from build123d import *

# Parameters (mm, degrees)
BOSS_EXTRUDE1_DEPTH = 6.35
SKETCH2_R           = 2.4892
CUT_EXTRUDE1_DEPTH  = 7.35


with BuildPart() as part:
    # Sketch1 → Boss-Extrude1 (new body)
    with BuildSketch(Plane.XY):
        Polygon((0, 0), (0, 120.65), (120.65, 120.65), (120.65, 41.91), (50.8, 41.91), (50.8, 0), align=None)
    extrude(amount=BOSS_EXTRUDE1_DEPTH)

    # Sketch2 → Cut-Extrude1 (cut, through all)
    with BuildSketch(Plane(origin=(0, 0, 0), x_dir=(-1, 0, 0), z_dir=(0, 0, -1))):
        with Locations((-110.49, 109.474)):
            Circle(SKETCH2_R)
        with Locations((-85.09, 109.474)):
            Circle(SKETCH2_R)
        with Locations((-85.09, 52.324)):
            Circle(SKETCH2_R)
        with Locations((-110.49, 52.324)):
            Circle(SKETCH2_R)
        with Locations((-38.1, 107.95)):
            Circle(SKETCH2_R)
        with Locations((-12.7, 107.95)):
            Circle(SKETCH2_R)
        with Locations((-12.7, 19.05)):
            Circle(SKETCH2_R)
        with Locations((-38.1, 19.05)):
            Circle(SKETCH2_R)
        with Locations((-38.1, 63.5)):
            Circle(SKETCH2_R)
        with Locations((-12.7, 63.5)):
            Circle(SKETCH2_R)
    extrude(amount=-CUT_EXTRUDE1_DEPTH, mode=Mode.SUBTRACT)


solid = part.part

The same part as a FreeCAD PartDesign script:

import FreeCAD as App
import Part
import Sketcher
from FreeCAD import Vector
Q = App.Units.Quantity


def add_polygon(sketch, points):
    """Adds a closed chain of lines whose ends are joined by coincident constraints."""
    first, n = sketch.GeometryCount, len(points)
    for a, b in zip(points, points[1:] + points[:1]):
        sketch.addGeometry(Part.LineSegment(App.Vector(*a, 0), App.Vector(*b, 0)), False)
    for i in range(n):
        sketch.addConstraint(Sketcher.Constraint("Coincident", first + i, 2, first + (i + 1) % n, 1))

doc = App.newDocument("Part")
params = doc.addObject("Spreadsheet::Sheet", "Params")
for row, (alias, value) in enumerate([
    ("sketch1_width", "2 in"),
    ("sketch1_height", "3.1 in"),
    ("sketch1_width2", "2.75 in"),
    ("pad1_length", "0.25 in"),
    ("sketch2_diameter", "0.196 in"),
], start=1):
    params.set(f"A{row}", alias)
    params.set(f"B{row}", "=" + value)
    params.setAlias(f"B{row}", alias)

body = doc.addObject("PartDesign::Body", "Body")

# Sketch on XY plane
sketch1 = body.newObject("Sketcher::SketchObject", "Sketch")
sketch1.AttachmentSupport = (doc.getObject("XY_Plane"), [""])
sketch1.MapMode = "FlatFace"
add_polygon(sketch1, [(0, 121), (0, 0), (51, 0), (51, 42), (121, 42), (121, 121)])  # lines 0-5
sketch1.addConstraint(Sketcher.Constraint("Vertical", 0))
sketch1.addConstraint(Sketcher.Constraint("Horizontal", 1))
sketch1.addConstraint(Sketcher.Constraint("Vertical", 2))
sketch1.addConstraint(Sketcher.Constraint("Horizontal", 3))
sketch1.addConstraint(Sketcher.Constraint("Vertical", 4))
sketch1.addConstraint(Sketcher.Constraint("Horizontal", 5))
sketch1.addConstraint(Sketcher.Constraint("Coincident", 0, 2, -1, 1))
sketch1.addConstraint(Sketcher.Constraint("Equal", 5, 0))
sketch1.addConstraint(Sketcher.Constraint("DistanceX", 1, 1, 1, 2, Q("2 in")))
sketch1.addConstraint(Sketcher.Constraint("DistanceY", 4, 1, 4, 2, Q("3.1 in")))
sketch1.addConstraint(Sketcher.Constraint("DistanceX", 3, 1, 3, 2, Q("2.75 in")))
sketch1.setExpression("Constraints[14]", "Params.sketch1_width")
sketch1.setExpression("Constraints[15]", "Params.sketch1_height")
sketch1.setExpression("Constraints[16]", "Params.sketch1_width2")
pad1 = body.newObject("PartDesign::Pad", "Pad")
pad1.Profile = sketch1
pad1.setExpression("Length", "Params.pad1_length")

# Sketch on XY plane
sketch2 = body.newObject("Sketcher::SketchObject", "Sketch001")
sketch2.AttachmentSupport = (doc.getObject("XY_Plane"), [""])
sketch2.MapMode = "FlatFace"
sketch2.addGeometry(Part.Circle(Vector(110.5, 109.5, 0), Vector(0, 0, 1), 2.5), False)
sketch2.addGeometry(Part.Circle(Vector(85.1, 109.5, 0), Vector(0, 0, 1), 2.5), False)
sketch2.addGeometry(Part.Circle(Vector(85.1, 52.3, 0), Vector(0, 0, 1), 2.5), False)
sketch2.addGeometry(Part.Circle(Vector(110.5, 52.3, 0), Vector(0, 0, 1), 2.5), False)
sketch2.addGeometry(Part.Circle(Vector(38.1, 108, 0), Vector(0, 0, 1), 2.5), False)
sketch2.addGeometry(Part.Circle(Vector(12.7, 108, 0), Vector(0, 0, 1), 2.5), False)
sketch2.addGeometry(Part.Circle(Vector(12.7, 19.1, 0), Vector(0, 0, 1), 2.5), False)
sketch2.addGeometry(Part.Circle(Vector(38.1, 19.1, 0), Vector(0, 0, 1), 2.5), False)
sketch2.addGeometry(Part.Circle(Vector(38.1, 63.5, 0), Vector(0, 0, 1), 2.5), False)
sketch2.addGeometry(Part.Circle(Vector(12.7, 63.5, 0), Vector(0, 0, 1), 2.5), False)
sketch2.addConstraint(Sketcher.Constraint("Equal", 0, 1))
sketch2.addConstraint(Sketcher.Constraint("Equal", 1, 2))
sketch2.addConstraint(Sketcher.Constraint("Equal", 2, 3))
sketch2.addConstraint(Sketcher.Constraint("Equal", 3, 4))
sketch2.addConstraint(Sketcher.Constraint("Equal", 4, 5))
sketch2.addConstraint(Sketcher.Constraint("Equal", 5, 6))
sketch2.addConstraint(Sketcher.Constraint("Equal", 6, 7))
sketch2.addConstraint(Sketcher.Constraint("Equal", 7, 8))
sketch2.addConstraint(Sketcher.Constraint("Equal", 8, 9))
sketch2.addConstraint(Sketcher.Constraint("Horizontal", 0, 3, 1, 3))
sketch2.addConstraint(Sketcher.Constraint("Horizontal", 2, 3, 3, 3))
sketch2.addConstraint(Sketcher.Constraint("Horizontal", 4, 3, 5, 3))
sketch2.addConstraint(Sketcher.Constraint("Horizontal", 6, 3, 7, 3))
sketch2.addConstraint(Sketcher.Constraint("Horizontal", 8, 3, 9, 3))
sketch2.addConstraint(Sketcher.Constraint("Vertical", 1, 3, 2, 3))
sketch2.addConstraint(Sketcher.Constraint("Vertical", 0, 3, 3, 3))
sketch2.addConstraint(Sketcher.Constraint("Vertical", 5, 3, 6, 3))
sketch2.addConstraint(Sketcher.Constraint("Vertical", 4, 3, 7, 3))
sketch2.addConstraint(Sketcher.Constraint("Vertical", 7, 3, 8, 3))
sketch2.addConstraint(Sketcher.Constraint("Vertical", 6, 3, 9, 3))
sketch2.addConstraint(Sketcher.Constraint("Diameter", 0, Q("0.196 in")))
sketch2.addConstraint(Sketcher.Constraint("DistanceX", 1, 3, 0, 3, Q("1 in")))
sketch2.addConstraint(Sketcher.Constraint("DistanceX", 5, 3, 4, 3, Q("1 in")))
sketch2.addConstraint(Sketcher.Constraint("DistanceX", -1, 1, 4, 3, Q("1.5 in")))
sketch2.addConstraint(Sketcher.Constraint("DistanceY", -1, 1, 8, 3, Q("2.5 in")))
sketch2.addConstraint(Sketcher.Constraint("DistanceY", 6, 3, 5, 3, Q("3.5 in")))
sketch2.addConstraint(Sketcher.Constraint("DistanceX", -1, 1, 0, 3, Q("4.35 in")))
sketch2.addConstraint(Sketcher.Constraint("DistanceY", -1, 1, 0, 3, Q("4.31 in")))
sketch2.addConstraint(Sketcher.Constraint("DistanceY", -1, 1, 2, 3, Q("2.06 in")))
sketch2.addConstraint(Sketcher.Constraint("DistanceY", -1, 1, 4, 3, Q("4.25 in")))
sketch2.setExpression("Constraints[20]", "Params.sketch2_diameter")
pocket1 = body.newObject("PartDesign::Pocket", "Pocket")
pocket1.Profile = sketch2
pocket1.Type = "ThroughAll"
pocket1.Reversed = True

doc.recompute()
